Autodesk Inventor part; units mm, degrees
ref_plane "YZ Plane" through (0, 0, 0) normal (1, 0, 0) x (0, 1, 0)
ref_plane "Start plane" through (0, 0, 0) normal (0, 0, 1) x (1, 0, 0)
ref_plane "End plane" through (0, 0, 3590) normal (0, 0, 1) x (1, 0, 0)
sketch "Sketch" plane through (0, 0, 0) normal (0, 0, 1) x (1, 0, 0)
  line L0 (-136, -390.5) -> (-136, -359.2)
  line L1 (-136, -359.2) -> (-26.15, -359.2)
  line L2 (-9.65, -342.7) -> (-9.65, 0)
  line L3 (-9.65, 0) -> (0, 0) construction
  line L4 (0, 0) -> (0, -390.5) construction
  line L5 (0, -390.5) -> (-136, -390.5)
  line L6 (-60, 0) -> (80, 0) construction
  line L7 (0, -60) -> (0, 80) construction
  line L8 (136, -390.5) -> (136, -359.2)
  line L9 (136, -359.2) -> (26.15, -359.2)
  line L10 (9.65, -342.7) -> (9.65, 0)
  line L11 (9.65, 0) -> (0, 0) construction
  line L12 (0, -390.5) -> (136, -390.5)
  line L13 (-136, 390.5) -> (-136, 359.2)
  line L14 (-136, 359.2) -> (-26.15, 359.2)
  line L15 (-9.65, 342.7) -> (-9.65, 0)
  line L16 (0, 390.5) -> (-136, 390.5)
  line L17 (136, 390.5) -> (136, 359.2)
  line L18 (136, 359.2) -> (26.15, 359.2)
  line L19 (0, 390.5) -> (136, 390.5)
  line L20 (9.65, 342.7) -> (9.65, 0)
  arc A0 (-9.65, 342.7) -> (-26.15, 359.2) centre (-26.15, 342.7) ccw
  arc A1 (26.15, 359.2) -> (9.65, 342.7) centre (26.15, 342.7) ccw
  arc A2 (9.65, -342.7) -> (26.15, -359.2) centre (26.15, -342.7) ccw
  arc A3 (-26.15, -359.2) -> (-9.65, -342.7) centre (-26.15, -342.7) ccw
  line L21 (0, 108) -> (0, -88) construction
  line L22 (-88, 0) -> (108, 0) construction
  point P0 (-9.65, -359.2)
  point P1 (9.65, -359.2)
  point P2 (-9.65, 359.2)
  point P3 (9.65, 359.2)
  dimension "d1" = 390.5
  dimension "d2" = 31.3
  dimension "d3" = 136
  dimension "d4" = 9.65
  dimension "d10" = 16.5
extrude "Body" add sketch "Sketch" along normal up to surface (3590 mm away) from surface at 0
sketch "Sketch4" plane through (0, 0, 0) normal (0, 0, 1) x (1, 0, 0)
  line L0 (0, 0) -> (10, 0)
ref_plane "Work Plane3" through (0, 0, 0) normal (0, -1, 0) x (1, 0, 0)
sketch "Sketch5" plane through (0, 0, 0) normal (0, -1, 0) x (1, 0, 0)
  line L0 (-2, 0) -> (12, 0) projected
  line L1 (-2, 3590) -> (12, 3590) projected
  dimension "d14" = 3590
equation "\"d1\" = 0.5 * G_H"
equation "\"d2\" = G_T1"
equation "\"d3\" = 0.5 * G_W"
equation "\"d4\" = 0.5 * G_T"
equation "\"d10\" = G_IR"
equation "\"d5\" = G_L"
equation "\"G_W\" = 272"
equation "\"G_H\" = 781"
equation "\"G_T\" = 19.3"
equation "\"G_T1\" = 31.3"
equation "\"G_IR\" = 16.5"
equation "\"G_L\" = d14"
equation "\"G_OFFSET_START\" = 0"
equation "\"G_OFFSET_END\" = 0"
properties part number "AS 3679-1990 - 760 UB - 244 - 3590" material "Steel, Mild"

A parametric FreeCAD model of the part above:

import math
import FreeCAD as App
import Part
import Sketcher

doc = App.newDocument("Part")
body = doc.addObject("PartDesign::Body", "Body")

# Sketch on XY plane
sketch1 = body.newObject("Sketcher::SketchObject", "Sketch")
sketch1.AttachmentSupport = (doc.getObject("XY_Plane"), [""])
sketch1.MapMode = "FlatFace"
sketch1.addGeometry([
    Part.LineSegment(App.Vector(-136, -359, 0), App.Vector(-136, -390, 0)),  # 0
    Part.LineSegment(App.Vector(-136, -390, 0), App.Vector(136, -390, 0)),  # 1
    Part.LineSegment(App.Vector(136, -390, 0), App.Vector(136, -359, 0)),  # 2
    Part.LineSegment(App.Vector(136, -359, 0), App.Vector(26, -359, 0)),  # 3
    Part.ArcOfCircle(Part.Circle(App.Vector(26, -343, 0), App.Vector(0, 0, 1), 16), math.radians(180), math.radians(270)),  # 4
    Part.LineSegment(App.Vector(10, -343, 0), App.Vector(10, 343, 0)),  # 5
    Part.ArcOfCircle(Part.Circle(App.Vector(26, 343, 0), App.Vector(0, 0, 1), 16), math.radians(90), math.radians(180)),  # 6
    Part.LineSegment(App.Vector(26, 359, 0), App.Vector(136, 359, 0)),  # 7
    Part.LineSegment(App.Vector(136, 359, 0), App.Vector(136, 390, 0)),  # 8
    Part.LineSegment(App.Vector(136, 390, 0), App.Vector(-136, 390, 0)),  # 9
    Part.LineSegment(App.Vector(-136, 390, 0), App.Vector(-136, 359, 0)),  # 10
    Part.LineSegment(App.Vector(-136, 359, 0), App.Vector(-26, 359, 0)),  # 11
    Part.ArcOfCircle(Part.Circle(App.Vector(-26, 343, 0), App.Vector(0, 0, 1), 16), math.radians(0), math.radians(90)),  # 12
    Part.LineSegment(App.Vector(-10, 343, 0), App.Vector(-10, -343, 0)),  # 13
    Part.ArcOfCircle(Part.Circle(App.Vector(-26, -343, 0), App.Vector(0, 0, 1), 16), math.radians(-90), math.radians(0)),  # 14
    Part.LineSegment(App.Vector(-26, -359, 0), App.Vector(-136, -359, 0)),  # 15
], False)
sketch1.addConstraint([
    Sketcher.Constraint("Coincident", 0, 2, 1, 1),
    Sketcher.Constraint("Coincident", 1, 2, 2, 1),
    Sketcher.Constraint("Coincident", 2, 2, 3, 1),
    Sketcher.Constraint("Tangent", 3, 2, 4, 2),
    Sketcher.Constraint("Tangent", 4, 1, 5, 1),
    Sketcher.Constraint("Tangent", 5, 2, 6, 2),
    Sketcher.Constraint("Tangent", 6, 1, 7, 1),
    Sketcher.Constraint("Coincident", 7, 2, 8, 1),
    Sketcher.Constraint("Coincident", 8, 2, 9, 1),
    Sketcher.Constraint("Coincident", 9, 2, 10, 1),
    Sketcher.Constraint("Coincident", 10, 2, 11, 1),
    Sketcher.Constraint("Tangent", 11, 2, 12, 2),
    Sketcher.Constraint("Tangent", 12, 1, 13, 1),
    Sketcher.Constraint("Tangent", 13, 2, 14, 2),
    Sketcher.Constraint("Tangent", 14, 1, 15, 1),
    Sketcher.Constraint("Coincident", 15, 2, 0, 1),
    Sketcher.Constraint("Vertical", 0),
    Sketcher.Constraint("Horizontal", 1),
    Sketcher.Constraint("Vertical", 2),
    Sketcher.Constraint("Horizontal", 3),
    Sketcher.Constraint("Vertical", 5),
    Sketcher.Constraint("Horizontal", 7),
    Sketcher.Constraint("Vertical", 8),
    Sketcher.Constraint("Horizontal", 9),
    Sketcher.Constraint("Vertical", 10),
    Sketcher.Constraint("Horizontal", 11),
    Sketcher.Constraint("Vertical", 13),
    Sketcher.Constraint("Horizontal", 15),
    Sketcher.Constraint("Equal", 4, 6),
    Sketcher.Constraint("Equal", 6, 12),
    Sketcher.Constraint("Equal", 12, 14),
    Sketcher.Constraint("Symmetric", 4, 3, 12, 3, -1, 1),
    Sketcher.Constraint("Symmetric", 0, 2, 8, 2, -1, 1),
    Sketcher.Constraint("Symmetric", 7, 2, 10, 2, -2),
    Sketcher.Constraint("Symmetric", 2, 2, 15, 2, -2),
    Sketcher.Constraint("Radius", 4, 16.5),
    Sketcher.Constraint("DistanceY", 0, 2, 0, 1, 31.3),
    Sketcher.Constraint("DistanceX", 0, 2, -1, 1, 136.0),
    Sketcher.Constraint("DistanceY", 0, 2, -1, 1, 390.5),
    Sketcher.Constraint("DistanceX", -1, 1, 4, 1, 9.65),
])
pad1 = body.newObject("PartDesign::Pad", "Pad")
pad1.Profile = sketch1
pad1.Length = 3590

doc.recompute()
